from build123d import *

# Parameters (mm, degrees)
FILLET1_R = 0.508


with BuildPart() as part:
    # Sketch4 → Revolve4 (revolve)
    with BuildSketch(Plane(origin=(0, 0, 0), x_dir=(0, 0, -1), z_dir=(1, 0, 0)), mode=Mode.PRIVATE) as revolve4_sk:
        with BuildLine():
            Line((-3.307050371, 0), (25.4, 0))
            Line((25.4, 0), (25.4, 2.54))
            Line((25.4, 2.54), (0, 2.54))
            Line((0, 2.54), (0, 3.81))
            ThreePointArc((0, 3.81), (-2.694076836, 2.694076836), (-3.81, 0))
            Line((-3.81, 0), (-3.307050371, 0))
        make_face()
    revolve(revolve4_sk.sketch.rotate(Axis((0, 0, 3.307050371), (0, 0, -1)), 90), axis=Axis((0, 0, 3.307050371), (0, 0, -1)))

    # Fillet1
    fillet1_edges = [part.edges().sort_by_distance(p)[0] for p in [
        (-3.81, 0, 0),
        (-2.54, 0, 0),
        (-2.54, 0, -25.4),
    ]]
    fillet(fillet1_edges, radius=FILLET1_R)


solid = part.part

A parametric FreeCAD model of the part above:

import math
import FreeCAD as App
import Part
import Sketcher
from FreeCAD import Vector
Q = App.Units.Quantity


def edges_at(feature, points):
    """Names of the edges that pass closest to the given points."""
    edges = feature.Shape.Edges
    near = lambda p: min(range(len(edges)), key=lambda i: edges[i].distToShape(Part.Vertex(*p))[0])
    return sorted({f"Edge{near(p) + 1}" for p in points})

doc = App.newDocument("Part")
body = doc.addObject("PartDesign::Body", "Body")

# Sketch on YZ plane
sketch1 = body.newObject("Sketcher::SketchObject", "Sketch")
sketch1.AttachmentSupport = (doc.getObject("YZ_Plane"), [""])
sketch1.MapMode = "FlatFace"
sketch1.addGeometry([
    Part.LineSegment(Vector(0, -25.4, 0), Vector(2.5, -25.4, 0)),  # 0
    Part.LineSegment(Vector(2.5, -25.4, 0), Vector(2.5, 0, 0)),  # 1
    Part.LineSegment(Vector(2.5, 0, 0), Vector(3.8, 0, 0)),  # 2
    Part.ArcOfCircle(Part.Circle(Vector(0, 0, 0), Vector(0, 0, 1), 3.8), math.radians(0), math.radians(90)),  # 3
    Part.LineSegment(Vector(0, 3.8, 0), Vector(0, -25.4, 0)),  # 4
], False)
sketch1.addConstraint([
    Sketcher.Constraint("Coincident", 0, 2, 1, 1),
    Sketcher.Constraint("Coincident", 1, 2, 2, 1),
    Sketcher.Constraint("Coincident", 2, 2, 3, 1),
    Sketcher.Constraint("Coincident", 3, 2, 4, 1),
    Sketcher.Constraint("Coincident", 4, 2, 0, 1),
    Sketcher.Constraint("Horizontal", 0),
    Sketcher.Constraint("Vertical", 1),
    Sketcher.Constraint("Horizontal", 2),
    Sketcher.Constraint("Vertical", 4),
    Sketcher.Constraint("Coincident", 3, 3, -1, 1),
    Sketcher.Constraint("PointOnObject", 1, 2, -1),
    Sketcher.Constraint("PointOnObject", 3, 2, -2),
    Sketcher.Constraint("DistanceY", 1, 1, 1, 2, Q("1 in")),
    Sketcher.Constraint("Radius", 3, Q("0.15 in")),
    Sketcher.Constraint("DistanceX", 0, 1, 0, 2, Q("0.1 in")),
])
revolution = body.newObject("PartDesign::Revolution", "Revolution")
revolution.Profile = sketch1
revolution.ReferenceAxis = (sketch1, ["V_Axis"])
revolution.Angle = 360
doc.recompute()

fillet = body.newObject("PartDesign::Fillet", "Fillet")
fillet.Base = (revolution, edges_at(revolution, [(-3.81, 0, 0), (-2.54, 0, 0), (-2.54, 0, -25.4)]))
fillet.Radius = Q("0.02 in")

doc.recompute()
